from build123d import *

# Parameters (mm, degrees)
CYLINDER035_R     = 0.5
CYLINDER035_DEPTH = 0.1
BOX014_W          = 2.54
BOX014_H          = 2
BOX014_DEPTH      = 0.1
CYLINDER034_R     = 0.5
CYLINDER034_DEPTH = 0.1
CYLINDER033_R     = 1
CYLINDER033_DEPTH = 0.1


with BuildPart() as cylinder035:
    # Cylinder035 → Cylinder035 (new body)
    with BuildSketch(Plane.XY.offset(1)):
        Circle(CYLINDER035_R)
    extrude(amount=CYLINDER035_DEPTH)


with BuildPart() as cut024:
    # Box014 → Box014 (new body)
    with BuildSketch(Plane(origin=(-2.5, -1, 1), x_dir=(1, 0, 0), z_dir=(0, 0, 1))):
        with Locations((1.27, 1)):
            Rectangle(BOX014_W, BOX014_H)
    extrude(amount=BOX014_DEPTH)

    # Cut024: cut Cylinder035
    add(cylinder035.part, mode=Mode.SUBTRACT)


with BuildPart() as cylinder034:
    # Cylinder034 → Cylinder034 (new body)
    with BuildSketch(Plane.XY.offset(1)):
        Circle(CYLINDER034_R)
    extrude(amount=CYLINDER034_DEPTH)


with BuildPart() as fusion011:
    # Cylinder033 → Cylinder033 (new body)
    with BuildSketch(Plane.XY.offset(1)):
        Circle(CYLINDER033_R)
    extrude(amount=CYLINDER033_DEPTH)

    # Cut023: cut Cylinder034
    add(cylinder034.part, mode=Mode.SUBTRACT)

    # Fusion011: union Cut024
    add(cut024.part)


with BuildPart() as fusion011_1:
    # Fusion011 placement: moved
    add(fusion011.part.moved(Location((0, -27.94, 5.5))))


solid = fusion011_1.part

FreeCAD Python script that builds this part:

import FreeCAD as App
import Part
import Sketcher

V = App.Vector
Q = App.Units.Quantity


def add_polygon(sketch, points):
    """Adds a closed chain of lines whose ends are joined by coincident constraints."""
    first, n = sketch.GeometryCount, len(points)
    for a, b in zip(points, points[1:] + points[:1]):
        sketch.addGeometry(Part.LineSegment(App.Vector(*a, 0), App.Vector(*b, 0)), False)
    for i in range(n):
        sketch.addConstraint(Sketcher.Constraint("Coincident", first + i, 2, first + (i + 1) % n, 1))

doc = App.newDocument("Part")
body = doc.addObject("PartDesign::Body", "Body")

# Sketch on XY plane
sketch1 = doc.addObject("Sketcher::SketchObject", "Sketch")
body.addObject(sketch1)
sketch1.AttachmentSupport = (doc.XY_Plane, [""])
sketch1.MapMode = "FlatFace"
sketch1.AttachmentOffset = App.Placement(V(0, 0, 1), App.Rotation())
sketch1.addGeometry(Part.Circle(V(0, 0, 0), V(0, 0, 1), 0.5), False)
sketch1.addConstraint(Sketcher.Constraint("Coincident", 0, 3, -1, 1))
sketch1.addConstraint(Sketcher.Constraint("Diameter", 0, Q("1 mm")))
pad1 = doc.addObject("PartDesign::Pad", "Pad")
body.addObject(pad1)
pad1.Profile = sketch1
pad1.Length = 0.1
body2 = doc.addObject("PartDesign::Body", "Body001")

# Sketch on XY plane
sketch2 = doc.addObject("Sketcher::SketchObject", "Sketch001")
body2.addObject(sketch2)
sketch2.AttachmentSupport = (doc.getObject("XY_Plane001"), [""])
sketch2.MapMode = "FlatFace"
sketch2.AttachmentOffset = App.Placement(V(0, 0, 1), App.Rotation())
add_polygon(sketch2, [(-2.5, 1), (-2.5, -1), (0.04, -1), (0.04, 1)])  # lines 0-3
sketch2.addConstraint(Sketcher.Constraint("Vertical", 0))
sketch2.addConstraint(Sketcher.Constraint("Horizontal", 1))
sketch2.addConstraint(Sketcher.Constraint("Vertical", 2))
sketch2.addConstraint(Sketcher.Constraint("Horizontal", 3))
sketch2.addConstraint(Sketcher.Constraint("DistanceY", 0, 2, 0, 1, Q("2 mm")))
sketch2.addConstraint(Sketcher.Constraint("DistanceY", 0, 2, -1, 1, Q("1 mm")))
sketch2.addConstraint(Sketcher.Constraint("DistanceX", 1, 1, 1, 2, Q("2.54 mm")))
sketch2.addConstraint(Sketcher.Constraint("DistanceX", 0, 2, -1, 1, Q("2.5 mm")))
pad2 = doc.addObject("PartDesign::Pad", "Pad001")
body2.addObject(pad2)
pad2.Profile = sketch2
pad2.Length = 0.1
doc.recompute()

boolean = doc.addObject("PartDesign::Boolean", "Boolean")
body2.addObject(boolean)
boolean.Type = "Cut"
boolean.addObjects([body])
body3 = doc.addObject("PartDesign::Body", "Body002")

# Sketch on XY plane
sketch3 = doc.addObject("Sketcher::SketchObject", "Sketch002")
body3.addObject(sketch3)
sketch3.AttachmentSupport = (doc.getObject("XY_Plane002"), [""])
sketch3.MapMode = "FlatFace"
sketch3.AttachmentOffset = App.Placement(V(0, 0, 1), App.Rotation())
sketch3.addGeometry(Part.Circle(V(0, 0, 0), V(0, 0, 1), 0.5), False)
sketch3.addConstraint(Sketcher.Constraint("Coincident", 0, 3, -1, 1))
sketch3.addConstraint(Sketcher.Constraint("Diameter", 0, Q("1 mm")))
pad3 = doc.addObject("PartDesign::Pad", "Pad002")
body3.addObject(pad3)
pad3.Profile = sketch3
pad3.Length = 0.1
body4 = doc.addObject("PartDesign::Body", "Body003")

# Sketch on XY plane
sketch4 = doc.addObject("Sketcher::SketchObject", "Sketch003")
body4.addObject(sketch4)
sketch4.AttachmentSupport = (doc.getObject("XY_Plane003"), [""])
sketch4.MapMode = "FlatFace"
sketch4.AttachmentOffset = App.Placement(V(0, 0, 1), App.Rotation())
sketch4.addGeometry(Part.Circle(V(0, 0, 0), V(0, 0, 1), 1), False)
sketch4.addConstraint(Sketcher.Constraint("Coincident", 0, 3, -1, 1))
sketch4.addConstraint(Sketcher.Constraint("Diameter", 0, Q("2 mm")))
pad4 = doc.addObject("PartDesign::Pad", "Pad003")
body4.addObject(pad4)
pad4.Profile = sketch4
pad4.Length = 0.1
doc.recompute()

boolean2 = doc.addObject("PartDesign::Boolean", "Boolean001")
body4.addObject(boolean2)
boolean2.Type = "Cut"
boolean2.addObjects([body3])
doc.recompute()

boolean3 = doc.addObject("PartDesign::Boolean", "Boolean002")
body4.addObject(boolean3)
boolean3.Type = "Fuse"
boolean3.addObjects([body2])
body5 = doc.addObject("PartDesign::Body", "Body004")
doc.recompute()

body4.Placement = App.Placement(V(0, -27.94, 5.5), App.Rotation(V(0, 0, 1), 0))
boolean4 = doc.addObject("PartDesign::Boolean", "Boolean003")
body5.addObject(boolean4)
boolean4.Type = "Fuse"
boolean4.addObjects([body4])

doc.recompute()
